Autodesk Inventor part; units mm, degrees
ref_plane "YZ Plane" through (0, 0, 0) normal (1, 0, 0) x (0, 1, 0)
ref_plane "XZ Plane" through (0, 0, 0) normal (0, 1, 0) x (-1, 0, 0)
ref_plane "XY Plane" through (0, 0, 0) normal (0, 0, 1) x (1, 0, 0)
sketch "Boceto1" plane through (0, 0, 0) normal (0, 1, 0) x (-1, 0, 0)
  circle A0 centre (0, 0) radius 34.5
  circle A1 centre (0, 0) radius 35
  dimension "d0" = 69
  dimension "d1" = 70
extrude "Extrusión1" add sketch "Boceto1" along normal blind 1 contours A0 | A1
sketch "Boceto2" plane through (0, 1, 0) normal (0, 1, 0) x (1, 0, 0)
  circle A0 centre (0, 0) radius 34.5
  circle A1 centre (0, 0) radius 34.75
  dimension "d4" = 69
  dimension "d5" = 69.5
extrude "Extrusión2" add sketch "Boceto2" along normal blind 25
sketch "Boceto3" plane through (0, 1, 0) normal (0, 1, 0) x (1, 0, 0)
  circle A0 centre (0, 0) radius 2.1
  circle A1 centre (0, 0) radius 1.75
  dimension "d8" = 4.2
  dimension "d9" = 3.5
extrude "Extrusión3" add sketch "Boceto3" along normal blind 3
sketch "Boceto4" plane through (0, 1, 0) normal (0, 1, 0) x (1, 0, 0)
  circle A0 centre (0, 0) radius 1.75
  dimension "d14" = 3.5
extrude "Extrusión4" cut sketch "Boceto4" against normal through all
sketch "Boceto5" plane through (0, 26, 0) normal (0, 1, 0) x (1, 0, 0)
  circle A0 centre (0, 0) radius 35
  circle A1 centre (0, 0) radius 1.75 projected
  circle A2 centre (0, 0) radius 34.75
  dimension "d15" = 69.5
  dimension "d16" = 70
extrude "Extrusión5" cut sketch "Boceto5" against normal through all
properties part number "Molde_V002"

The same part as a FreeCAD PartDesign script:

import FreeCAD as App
import Part
import Sketcher
from FreeCAD import Vector
Q = App.Units.Quantity

doc = App.newDocument("Part")
params = doc.addObject("Spreadsheet::Sheet", "Params")
for row, (alias, value) in enumerate([
    ("sketch1_diameter", "70 mm"),
    ("pad1_length", "1 mm"),
    ("sketch2_diameter", "69 mm"),
    ("sketch2_diameter2", "69.5 mm"),
    ("pad2_length", "25 mm"),
    ("sketch3_diameter", "4.2 mm"),
    ("sketch3_diameter2", "3.5 mm"),
    ("pad3_length", "3 mm"),
    ("sketch4_diameter", "3.5 mm"),
    ("sketch5_diameter", "70 mm"),
    ("sketch5_diameter2", "69.5 mm"),
    ("sketch5_diameter3", "3.5 mm"),
], start=1):
    params.set(f"A{row}", alias)
    params.set(f"B{row}", "=" + value)
    params.setAlias(f"B{row}", alias)

body = doc.addObject("PartDesign::Body", "Body")

# Sketch on XZ plane
sketch1 = doc.addObject("Sketcher::SketchObject", "Sketch")
body.addObject(sketch1)
sketch1.AttachmentSupport = (doc.XZ_Plane, [""])
sketch1.MapMode = "FlatFace"
sketch1.addGeometry(Part.Circle(Vector(0, 0, 0), Vector(0, 0, 1), 35), False)
sketch1.addConstraint([
    Sketcher.Constraint("Coincident", 0, 3, -1, 1),
    Sketcher.Constraint("Diameter", 0, Q("70 mm")),
])
sketch1.setExpression("Constraints[1]", "Params.sketch1_diameter")
pad1 = doc.addObject("PartDesign::Pad", "Pad")
body.addObject(pad1)
pad1.Profile = sketch1
pad1.setExpression("Length", "Params.pad1_length")
pad1.Reversed = True

# Sketch on XZ plane
sketch2 = doc.addObject("Sketcher::SketchObject", "Sketch001")
body.addObject(sketch2)
sketch2.AttachmentSupport = (doc.XZ_Plane, [""])
sketch2.MapMode = "FlatFace"
sketch2.AttachmentOffset = App.Placement(Vector(0, 0, -1), App.Rotation())
sketch2.addGeometry([
    Part.Circle(Vector(0, 0, 0), Vector(0, 0, 1), 34.75),
    Part.Circle(Vector(0, 0, 0), Vector(0, 0, 1), 34.5),
], False)
sketch2.addConstraint([
    Sketcher.Constraint("Coincident", 0, 3, -1, 1),
    Sketcher.Constraint("Coincident", 1, 3, -1, 1),
    Sketcher.Constraint("Diameter", 1, Q("69 mm")),
    Sketcher.Constraint("Diameter", 0, Q("69.5 mm")),
])
sketch2.setExpression("Constraints[2]", "Params.sketch2_diameter")
sketch2.setExpression("Constraints[3]", "Params.sketch2_diameter2")
pad2 = doc.addObject("PartDesign::Pad", "Pad001")
body.addObject(pad2)
pad2.Profile = sketch2
pad2.setExpression("Length", "Params.pad2_length")
pad2.Reversed = True

# Sketch on XZ plane
sketch3 = doc.addObject("Sketcher::SketchObject", "Sketch002")
body.addObject(sketch3)
sketch3.AttachmentSupport = (doc.XZ_Plane, [""])
sketch3.MapMode = "FlatFace"
sketch3.AttachmentOffset = App.Placement(Vector(0, 0, -1), App.Rotation())
sketch3.addGeometry([
    Part.Circle(Vector(0, 0, 0), Vector(0, 0, 1), 2.1),
    Part.Circle(Vector(0, 0, 0), Vector(0, 0, 1), 1.75),
], False)
sketch3.addConstraint([
    Sketcher.Constraint("Coincident", 0, 3, -1, 1),
    Sketcher.Constraint("Coincident", 1, 3, -1, 1),
    Sketcher.Constraint("Diameter", 0, Q("4.2 mm")),
    Sketcher.Constraint("Diameter", 1, Q("3.5 mm")),
])
sketch3.setExpression("Constraints[2]", "Params.sketch3_diameter")
sketch3.setExpression("Constraints[3]", "Params.sketch3_diameter2")
pad3 = doc.addObject("PartDesign::Pad", "Pad002")
body.addObject(pad3)
pad3.Profile = sketch3
pad3.setExpression("Length", "Params.pad3_length")
pad3.Reversed = True

# Sketch on XZ plane
sketch4 = doc.addObject("Sketcher::SketchObject", "Sketch003")
body.addObject(sketch4)
sketch4.AttachmentSupport = (doc.XZ_Plane, [""])
sketch4.MapMode = "FlatFace"
sketch4.AttachmentOffset = App.Placement(Vector(0, 0, -1), App.Rotation())
sketch4.addGeometry(Part.Circle(Vector(0, 0, 0), Vector(0, 0, 1), 1.75), False)
sketch4.addConstraint([
    Sketcher.Constraint("Coincident", 0, 3, -1, 1),
    Sketcher.Constraint("Diameter", 0, Q("3.5 mm")),
])
sketch4.setExpression("Constraints[1]", "Params.sketch4_diameter")
pocket1 = doc.addObject("PartDesign::Pocket", "Pocket")
body.addObject(pocket1)
pocket1.Profile = sketch4
pocket1.Type = "ThroughAll"
pocket1.Reversed = True

# Sketch on XZ plane
sketch5 = doc.addObject("Sketcher::SketchObject", "Sketch004")
body.addObject(sketch5)
sketch5.AttachmentSupport = (doc.XZ_Plane, [""])
sketch5.MapMode = "FlatFace"
sketch5.AttachmentOffset = App.Placement(Vector(0, 0, -26), App.Rotation())
sketch5.addGeometry([
    Part.Circle(Vector(0, 0, 0), Vector(0, 0, 1), 35),
    Part.Circle(Vector(0, 0, 0), Vector(0, 0, 1), 34.75),
    Part.Circle(Vector(0, 0, 0), Vector(0, 0, 1), 1.75),
], False)
sketch5.addConstraint([
    Sketcher.Constraint("Coincident", 0, 3, -1, 1),
    Sketcher.Constraint("Coincident", 1, 3, -1, 1),
    Sketcher.Constraint("Coincident", 2, 3, -1, 1),
    Sketcher.Constraint("Diameter", 0, Q("70 mm")),
    Sketcher.Constraint("Diameter", 1, Q("69.5 mm")),
    Sketcher.Constraint("Diameter", 2, Q("3.5 mm")),
])
sketch5.setExpression("Constraints[3]", "Params.sketch5_diameter")
sketch5.setExpression("Constraints[4]", "Params.sketch5_diameter2")
sketch5.setExpression("Constraints[5]", "Params.sketch5_diameter3")
pocket2 = doc.addObject("PartDesign::Pocket", "Pocket001")
body.addObject(pocket2)
pocket2.Profile = sketch5
pocket2.Type = "ThroughAll"
pocket2.Reversed = True

doc.recompute()
